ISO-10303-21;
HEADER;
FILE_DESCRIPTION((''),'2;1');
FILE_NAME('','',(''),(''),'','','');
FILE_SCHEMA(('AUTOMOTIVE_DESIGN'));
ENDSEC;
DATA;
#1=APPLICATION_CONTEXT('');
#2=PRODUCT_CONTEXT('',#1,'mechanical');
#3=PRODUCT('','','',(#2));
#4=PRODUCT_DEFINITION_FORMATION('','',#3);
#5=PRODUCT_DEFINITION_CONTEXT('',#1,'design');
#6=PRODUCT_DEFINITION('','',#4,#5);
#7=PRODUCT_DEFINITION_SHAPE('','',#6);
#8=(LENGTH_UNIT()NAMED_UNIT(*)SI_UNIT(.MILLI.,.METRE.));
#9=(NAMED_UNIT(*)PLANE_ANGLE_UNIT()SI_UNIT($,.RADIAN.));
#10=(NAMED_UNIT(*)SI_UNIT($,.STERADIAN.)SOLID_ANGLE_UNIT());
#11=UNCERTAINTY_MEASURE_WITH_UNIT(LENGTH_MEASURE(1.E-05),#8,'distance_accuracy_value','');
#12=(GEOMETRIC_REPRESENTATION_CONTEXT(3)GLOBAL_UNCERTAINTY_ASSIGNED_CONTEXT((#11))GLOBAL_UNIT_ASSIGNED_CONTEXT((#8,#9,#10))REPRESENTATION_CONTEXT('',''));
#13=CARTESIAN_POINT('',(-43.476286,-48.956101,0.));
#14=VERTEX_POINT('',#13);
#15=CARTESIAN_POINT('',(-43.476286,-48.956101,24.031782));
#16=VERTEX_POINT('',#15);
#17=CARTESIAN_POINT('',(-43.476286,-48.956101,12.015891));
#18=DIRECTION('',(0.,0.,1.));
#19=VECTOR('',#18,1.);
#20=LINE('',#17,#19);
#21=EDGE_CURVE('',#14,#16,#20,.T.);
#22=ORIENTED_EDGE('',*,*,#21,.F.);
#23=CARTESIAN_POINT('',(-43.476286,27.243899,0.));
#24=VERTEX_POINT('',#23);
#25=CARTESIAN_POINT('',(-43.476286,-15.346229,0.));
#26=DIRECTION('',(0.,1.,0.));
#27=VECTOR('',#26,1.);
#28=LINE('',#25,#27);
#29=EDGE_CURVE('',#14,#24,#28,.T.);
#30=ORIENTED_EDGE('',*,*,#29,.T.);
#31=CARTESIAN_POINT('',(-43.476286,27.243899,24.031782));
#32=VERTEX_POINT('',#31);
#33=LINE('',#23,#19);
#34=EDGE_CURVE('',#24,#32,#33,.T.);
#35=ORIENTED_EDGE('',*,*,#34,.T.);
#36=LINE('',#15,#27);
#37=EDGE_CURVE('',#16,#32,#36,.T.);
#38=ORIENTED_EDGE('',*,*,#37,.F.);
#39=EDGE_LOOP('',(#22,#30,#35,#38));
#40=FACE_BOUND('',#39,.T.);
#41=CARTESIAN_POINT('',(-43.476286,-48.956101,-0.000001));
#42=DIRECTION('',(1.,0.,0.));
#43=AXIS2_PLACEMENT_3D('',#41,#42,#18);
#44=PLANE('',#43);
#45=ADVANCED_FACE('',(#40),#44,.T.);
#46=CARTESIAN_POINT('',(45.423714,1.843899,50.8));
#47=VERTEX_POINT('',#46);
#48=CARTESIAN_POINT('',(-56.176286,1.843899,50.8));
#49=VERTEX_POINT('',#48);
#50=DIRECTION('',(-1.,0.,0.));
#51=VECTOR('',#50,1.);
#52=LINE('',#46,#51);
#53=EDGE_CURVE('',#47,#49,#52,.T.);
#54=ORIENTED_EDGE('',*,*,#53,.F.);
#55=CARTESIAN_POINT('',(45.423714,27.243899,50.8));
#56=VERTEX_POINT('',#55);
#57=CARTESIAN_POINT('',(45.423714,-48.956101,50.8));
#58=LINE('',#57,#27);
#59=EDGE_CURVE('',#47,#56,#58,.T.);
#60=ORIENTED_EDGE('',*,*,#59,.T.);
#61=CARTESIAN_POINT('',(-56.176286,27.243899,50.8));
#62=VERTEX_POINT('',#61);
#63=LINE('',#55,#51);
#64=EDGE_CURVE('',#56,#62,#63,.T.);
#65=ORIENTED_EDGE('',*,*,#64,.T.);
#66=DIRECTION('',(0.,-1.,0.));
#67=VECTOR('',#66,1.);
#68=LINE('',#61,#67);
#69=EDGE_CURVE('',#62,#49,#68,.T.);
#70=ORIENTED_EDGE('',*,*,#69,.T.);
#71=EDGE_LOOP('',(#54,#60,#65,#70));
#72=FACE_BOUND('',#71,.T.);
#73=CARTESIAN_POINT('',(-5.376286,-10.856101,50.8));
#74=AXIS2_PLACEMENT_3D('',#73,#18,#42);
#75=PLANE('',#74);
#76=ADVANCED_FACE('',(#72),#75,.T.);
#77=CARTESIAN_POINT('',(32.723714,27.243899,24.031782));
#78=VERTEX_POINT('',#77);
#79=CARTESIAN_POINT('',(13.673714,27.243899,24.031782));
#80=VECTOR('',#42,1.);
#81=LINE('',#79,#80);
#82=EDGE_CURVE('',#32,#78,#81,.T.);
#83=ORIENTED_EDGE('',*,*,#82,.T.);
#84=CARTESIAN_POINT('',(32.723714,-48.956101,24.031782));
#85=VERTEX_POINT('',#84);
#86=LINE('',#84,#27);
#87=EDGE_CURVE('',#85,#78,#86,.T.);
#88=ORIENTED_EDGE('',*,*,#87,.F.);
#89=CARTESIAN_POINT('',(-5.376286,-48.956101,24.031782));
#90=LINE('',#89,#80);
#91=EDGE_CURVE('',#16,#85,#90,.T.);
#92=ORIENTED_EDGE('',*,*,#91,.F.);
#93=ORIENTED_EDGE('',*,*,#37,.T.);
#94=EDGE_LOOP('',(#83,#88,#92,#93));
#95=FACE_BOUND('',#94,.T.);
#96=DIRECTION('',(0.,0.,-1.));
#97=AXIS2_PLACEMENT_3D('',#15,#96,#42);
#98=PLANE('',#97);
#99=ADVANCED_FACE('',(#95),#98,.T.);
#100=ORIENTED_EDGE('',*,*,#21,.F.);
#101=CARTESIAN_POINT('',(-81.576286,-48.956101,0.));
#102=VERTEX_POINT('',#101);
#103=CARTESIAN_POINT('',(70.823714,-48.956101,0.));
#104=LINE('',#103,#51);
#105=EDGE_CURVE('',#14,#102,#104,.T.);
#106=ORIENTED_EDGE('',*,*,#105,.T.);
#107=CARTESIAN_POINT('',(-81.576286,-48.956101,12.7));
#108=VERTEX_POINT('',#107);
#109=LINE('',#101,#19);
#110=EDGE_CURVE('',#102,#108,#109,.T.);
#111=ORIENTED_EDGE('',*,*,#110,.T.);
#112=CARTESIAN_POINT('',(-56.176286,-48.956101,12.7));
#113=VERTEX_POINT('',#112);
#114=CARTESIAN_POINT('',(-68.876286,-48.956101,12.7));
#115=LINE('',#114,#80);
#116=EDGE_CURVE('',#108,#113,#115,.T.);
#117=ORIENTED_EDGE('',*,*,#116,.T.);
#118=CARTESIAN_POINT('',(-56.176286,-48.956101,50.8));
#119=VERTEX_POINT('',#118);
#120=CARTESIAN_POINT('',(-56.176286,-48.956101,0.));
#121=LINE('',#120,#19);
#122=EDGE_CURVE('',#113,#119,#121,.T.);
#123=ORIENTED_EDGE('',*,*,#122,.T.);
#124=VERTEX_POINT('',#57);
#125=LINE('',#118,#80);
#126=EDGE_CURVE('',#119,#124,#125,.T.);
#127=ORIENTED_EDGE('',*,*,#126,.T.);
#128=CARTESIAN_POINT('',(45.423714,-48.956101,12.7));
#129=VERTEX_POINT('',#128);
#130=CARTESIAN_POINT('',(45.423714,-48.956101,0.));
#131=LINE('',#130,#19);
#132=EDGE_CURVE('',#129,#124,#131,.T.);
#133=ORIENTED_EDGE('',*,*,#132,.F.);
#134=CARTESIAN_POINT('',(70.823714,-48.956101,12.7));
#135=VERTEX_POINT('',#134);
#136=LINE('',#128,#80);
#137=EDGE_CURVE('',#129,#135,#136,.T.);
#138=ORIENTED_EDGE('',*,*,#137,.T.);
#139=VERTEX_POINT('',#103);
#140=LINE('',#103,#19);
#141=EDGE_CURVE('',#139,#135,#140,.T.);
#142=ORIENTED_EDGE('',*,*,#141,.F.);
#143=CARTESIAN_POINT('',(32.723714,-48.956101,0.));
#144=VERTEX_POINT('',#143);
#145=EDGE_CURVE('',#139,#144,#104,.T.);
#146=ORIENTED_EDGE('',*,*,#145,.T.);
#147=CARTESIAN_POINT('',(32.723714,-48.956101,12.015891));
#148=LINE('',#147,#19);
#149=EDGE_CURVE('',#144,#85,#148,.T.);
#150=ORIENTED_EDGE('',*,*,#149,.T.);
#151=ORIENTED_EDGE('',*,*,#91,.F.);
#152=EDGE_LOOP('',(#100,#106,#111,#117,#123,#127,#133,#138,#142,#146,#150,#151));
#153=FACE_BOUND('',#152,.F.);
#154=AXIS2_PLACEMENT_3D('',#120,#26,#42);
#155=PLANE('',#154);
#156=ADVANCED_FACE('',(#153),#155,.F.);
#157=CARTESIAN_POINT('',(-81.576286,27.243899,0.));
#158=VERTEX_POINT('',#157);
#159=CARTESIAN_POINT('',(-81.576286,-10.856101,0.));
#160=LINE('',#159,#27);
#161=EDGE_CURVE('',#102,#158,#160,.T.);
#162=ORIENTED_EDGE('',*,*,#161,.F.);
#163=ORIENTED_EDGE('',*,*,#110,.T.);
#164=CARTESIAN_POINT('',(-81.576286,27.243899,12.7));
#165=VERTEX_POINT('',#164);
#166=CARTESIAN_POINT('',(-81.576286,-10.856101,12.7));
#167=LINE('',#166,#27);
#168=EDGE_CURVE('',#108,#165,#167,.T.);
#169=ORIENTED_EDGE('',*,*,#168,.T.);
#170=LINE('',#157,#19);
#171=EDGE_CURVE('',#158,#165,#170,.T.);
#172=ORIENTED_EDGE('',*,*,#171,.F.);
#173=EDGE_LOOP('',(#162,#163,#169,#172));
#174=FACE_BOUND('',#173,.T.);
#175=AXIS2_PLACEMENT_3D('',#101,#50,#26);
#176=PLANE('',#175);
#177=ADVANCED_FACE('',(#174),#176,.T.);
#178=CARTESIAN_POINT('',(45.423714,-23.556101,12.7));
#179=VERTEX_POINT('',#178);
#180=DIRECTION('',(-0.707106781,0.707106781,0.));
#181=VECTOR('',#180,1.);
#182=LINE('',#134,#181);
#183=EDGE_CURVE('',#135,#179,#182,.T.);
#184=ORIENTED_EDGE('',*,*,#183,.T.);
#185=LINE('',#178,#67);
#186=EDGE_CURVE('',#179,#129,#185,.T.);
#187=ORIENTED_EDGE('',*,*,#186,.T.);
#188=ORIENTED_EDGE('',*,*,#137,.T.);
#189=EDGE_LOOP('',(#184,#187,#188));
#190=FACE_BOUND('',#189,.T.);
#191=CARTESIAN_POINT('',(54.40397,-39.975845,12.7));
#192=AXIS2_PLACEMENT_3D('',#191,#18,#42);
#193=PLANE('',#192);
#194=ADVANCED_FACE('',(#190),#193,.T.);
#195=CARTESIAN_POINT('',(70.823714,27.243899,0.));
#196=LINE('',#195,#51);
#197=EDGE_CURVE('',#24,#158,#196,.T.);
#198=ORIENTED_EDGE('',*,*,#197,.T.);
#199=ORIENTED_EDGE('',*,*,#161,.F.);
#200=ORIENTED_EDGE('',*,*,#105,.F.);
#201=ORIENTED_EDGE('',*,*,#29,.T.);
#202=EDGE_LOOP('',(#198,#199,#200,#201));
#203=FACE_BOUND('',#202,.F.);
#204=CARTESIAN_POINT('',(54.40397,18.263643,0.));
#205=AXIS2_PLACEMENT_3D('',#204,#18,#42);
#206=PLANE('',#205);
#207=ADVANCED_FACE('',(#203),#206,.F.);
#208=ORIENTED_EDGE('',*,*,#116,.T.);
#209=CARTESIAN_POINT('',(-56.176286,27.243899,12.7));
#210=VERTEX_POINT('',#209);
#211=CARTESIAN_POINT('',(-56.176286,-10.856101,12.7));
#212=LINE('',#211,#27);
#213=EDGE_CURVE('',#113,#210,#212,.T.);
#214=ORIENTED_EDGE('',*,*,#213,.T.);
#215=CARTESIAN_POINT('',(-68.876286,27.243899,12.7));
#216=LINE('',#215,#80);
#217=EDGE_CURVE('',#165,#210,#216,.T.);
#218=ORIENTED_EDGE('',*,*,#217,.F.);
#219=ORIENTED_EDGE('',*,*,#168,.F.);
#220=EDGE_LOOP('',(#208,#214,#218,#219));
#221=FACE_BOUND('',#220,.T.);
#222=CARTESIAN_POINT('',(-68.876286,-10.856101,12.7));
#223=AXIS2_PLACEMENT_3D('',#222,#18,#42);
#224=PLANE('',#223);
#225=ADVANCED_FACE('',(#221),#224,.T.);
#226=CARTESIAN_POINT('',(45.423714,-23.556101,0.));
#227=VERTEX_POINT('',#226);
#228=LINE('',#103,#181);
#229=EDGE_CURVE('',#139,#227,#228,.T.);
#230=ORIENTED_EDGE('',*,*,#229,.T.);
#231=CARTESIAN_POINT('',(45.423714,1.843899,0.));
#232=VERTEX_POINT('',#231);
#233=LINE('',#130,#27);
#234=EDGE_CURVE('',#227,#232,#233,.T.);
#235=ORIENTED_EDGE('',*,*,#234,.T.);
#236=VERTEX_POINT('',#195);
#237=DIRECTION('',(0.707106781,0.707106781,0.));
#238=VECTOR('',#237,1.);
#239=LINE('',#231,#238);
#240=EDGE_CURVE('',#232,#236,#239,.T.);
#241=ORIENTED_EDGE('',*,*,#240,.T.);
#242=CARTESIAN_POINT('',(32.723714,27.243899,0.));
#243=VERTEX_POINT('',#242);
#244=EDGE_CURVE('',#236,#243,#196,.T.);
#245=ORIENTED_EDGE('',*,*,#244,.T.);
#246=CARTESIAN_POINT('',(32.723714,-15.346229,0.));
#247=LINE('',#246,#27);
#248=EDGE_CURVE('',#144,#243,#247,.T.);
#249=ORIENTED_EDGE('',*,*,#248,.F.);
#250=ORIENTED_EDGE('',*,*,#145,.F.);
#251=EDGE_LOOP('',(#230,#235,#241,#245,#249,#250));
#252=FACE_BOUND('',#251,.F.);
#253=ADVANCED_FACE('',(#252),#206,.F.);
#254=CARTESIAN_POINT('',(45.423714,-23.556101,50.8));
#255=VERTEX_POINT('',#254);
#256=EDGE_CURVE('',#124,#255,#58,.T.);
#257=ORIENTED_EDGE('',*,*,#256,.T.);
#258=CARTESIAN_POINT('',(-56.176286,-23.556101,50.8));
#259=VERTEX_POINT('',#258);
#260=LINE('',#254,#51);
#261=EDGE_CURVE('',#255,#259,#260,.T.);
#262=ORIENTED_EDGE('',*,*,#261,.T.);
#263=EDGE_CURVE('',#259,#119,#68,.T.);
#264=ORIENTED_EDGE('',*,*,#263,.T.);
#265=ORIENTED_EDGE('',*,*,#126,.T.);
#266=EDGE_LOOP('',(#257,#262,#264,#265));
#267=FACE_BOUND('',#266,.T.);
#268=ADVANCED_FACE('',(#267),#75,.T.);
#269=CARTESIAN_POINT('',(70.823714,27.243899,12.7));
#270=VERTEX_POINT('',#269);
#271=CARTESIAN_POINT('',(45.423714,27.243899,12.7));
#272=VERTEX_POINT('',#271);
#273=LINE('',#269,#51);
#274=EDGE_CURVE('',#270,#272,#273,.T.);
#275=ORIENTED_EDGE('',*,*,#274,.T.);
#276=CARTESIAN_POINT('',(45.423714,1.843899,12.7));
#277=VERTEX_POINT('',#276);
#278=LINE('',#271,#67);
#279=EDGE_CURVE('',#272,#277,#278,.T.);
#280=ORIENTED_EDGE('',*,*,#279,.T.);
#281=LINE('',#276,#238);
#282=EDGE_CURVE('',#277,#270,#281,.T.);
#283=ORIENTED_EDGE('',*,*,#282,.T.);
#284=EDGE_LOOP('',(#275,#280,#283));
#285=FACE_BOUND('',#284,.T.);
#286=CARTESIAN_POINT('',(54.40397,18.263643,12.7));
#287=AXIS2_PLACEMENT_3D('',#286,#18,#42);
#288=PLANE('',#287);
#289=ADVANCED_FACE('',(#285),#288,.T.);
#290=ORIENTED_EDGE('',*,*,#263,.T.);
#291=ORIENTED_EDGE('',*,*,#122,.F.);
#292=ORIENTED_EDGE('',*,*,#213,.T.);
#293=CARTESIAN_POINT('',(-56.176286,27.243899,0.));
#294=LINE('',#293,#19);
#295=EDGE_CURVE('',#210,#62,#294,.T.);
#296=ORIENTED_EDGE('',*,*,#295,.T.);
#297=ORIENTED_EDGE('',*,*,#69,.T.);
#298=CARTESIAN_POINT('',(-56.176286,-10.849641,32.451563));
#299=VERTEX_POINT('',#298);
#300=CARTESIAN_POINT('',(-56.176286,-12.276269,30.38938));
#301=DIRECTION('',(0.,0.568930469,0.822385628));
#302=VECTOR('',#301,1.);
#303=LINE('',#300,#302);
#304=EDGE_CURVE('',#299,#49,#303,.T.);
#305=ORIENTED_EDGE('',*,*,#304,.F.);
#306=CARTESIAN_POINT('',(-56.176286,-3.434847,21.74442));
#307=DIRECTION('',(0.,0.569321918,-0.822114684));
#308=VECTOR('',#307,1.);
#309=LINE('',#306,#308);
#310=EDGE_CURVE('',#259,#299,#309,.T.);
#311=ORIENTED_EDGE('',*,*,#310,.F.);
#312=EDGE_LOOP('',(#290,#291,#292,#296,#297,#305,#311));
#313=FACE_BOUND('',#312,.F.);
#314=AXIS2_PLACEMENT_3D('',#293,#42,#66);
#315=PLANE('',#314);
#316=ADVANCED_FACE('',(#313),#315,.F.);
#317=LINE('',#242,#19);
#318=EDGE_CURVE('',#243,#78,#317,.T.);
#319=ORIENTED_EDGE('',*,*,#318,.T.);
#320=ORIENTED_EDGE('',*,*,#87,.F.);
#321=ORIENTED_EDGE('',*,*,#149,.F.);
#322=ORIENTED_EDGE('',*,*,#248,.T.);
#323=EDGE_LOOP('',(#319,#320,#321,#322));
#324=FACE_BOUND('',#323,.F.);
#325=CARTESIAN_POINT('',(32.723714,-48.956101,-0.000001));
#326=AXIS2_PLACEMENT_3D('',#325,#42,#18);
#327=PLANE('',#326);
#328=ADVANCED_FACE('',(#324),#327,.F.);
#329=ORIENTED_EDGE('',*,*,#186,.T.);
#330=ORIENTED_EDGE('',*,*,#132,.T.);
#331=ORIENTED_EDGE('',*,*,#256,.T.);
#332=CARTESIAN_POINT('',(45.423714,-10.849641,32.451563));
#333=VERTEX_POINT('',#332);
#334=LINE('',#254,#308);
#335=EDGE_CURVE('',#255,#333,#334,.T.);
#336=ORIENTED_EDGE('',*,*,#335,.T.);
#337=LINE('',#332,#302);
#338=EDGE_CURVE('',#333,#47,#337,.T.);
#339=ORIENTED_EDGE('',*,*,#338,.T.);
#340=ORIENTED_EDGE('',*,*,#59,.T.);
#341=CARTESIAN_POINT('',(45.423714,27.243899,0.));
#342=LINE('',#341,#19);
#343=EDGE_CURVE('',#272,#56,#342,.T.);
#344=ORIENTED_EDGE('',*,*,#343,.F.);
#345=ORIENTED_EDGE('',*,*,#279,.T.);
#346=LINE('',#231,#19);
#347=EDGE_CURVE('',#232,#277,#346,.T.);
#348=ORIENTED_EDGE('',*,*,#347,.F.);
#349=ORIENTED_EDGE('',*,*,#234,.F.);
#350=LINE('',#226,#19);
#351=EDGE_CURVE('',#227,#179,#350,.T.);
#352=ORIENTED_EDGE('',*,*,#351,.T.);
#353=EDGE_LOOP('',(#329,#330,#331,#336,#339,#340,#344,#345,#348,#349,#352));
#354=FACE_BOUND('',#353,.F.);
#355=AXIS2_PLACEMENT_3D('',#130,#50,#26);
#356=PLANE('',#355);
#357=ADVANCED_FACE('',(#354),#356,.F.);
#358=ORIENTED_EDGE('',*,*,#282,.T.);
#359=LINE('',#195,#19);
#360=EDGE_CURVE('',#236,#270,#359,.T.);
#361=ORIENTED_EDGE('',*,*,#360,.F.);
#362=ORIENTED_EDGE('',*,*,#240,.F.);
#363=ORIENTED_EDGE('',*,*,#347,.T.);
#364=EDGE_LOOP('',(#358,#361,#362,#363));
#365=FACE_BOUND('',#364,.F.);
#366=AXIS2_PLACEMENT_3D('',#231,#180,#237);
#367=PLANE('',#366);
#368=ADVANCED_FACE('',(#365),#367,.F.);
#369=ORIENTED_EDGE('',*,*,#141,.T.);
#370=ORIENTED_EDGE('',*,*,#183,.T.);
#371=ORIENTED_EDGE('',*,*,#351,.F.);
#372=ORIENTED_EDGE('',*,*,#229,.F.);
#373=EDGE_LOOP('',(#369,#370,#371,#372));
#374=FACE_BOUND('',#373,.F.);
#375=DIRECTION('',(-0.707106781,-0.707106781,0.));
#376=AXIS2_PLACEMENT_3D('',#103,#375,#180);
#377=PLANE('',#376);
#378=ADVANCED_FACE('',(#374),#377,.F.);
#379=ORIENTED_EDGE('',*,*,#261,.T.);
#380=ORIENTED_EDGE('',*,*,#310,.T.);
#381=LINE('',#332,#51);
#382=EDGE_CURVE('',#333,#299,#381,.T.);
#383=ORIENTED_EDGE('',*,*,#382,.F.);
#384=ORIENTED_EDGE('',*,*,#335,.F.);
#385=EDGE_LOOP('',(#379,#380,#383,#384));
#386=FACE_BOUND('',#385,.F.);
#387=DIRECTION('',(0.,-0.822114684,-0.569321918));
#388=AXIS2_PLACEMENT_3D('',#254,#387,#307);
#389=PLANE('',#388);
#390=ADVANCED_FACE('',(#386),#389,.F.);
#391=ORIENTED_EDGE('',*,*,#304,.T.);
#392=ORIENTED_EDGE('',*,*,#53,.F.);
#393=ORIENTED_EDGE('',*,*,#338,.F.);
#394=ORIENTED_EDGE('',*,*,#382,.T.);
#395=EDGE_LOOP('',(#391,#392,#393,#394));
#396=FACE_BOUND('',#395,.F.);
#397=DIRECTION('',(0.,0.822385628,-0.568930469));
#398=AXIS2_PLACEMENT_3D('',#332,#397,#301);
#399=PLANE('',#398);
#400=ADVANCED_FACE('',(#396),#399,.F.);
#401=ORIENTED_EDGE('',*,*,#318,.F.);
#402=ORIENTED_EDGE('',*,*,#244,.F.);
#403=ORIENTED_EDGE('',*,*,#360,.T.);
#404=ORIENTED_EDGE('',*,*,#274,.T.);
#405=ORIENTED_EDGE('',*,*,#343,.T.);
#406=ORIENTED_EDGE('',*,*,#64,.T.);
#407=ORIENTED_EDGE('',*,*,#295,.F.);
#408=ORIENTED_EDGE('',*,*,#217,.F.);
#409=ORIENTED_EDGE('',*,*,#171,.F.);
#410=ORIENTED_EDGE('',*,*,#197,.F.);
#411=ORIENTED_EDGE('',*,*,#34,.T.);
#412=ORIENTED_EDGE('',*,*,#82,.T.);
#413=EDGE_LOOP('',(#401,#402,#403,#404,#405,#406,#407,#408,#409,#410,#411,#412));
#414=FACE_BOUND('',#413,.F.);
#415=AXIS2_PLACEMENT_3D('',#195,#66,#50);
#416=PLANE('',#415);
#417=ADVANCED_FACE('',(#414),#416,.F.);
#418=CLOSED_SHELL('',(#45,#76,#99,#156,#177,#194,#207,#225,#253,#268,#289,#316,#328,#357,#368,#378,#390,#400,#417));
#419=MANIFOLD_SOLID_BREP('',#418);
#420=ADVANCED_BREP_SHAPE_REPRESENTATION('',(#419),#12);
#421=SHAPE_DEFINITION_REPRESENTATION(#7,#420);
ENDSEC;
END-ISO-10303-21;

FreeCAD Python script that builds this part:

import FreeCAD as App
import Part
import Sketcher
Q = App.Units.Quantity


def add_polygon(sketch, points):
    """Adds a closed chain of lines whose ends are joined by coincident constraints."""
    first, n = sketch.GeometryCount, len(points)
    for a, b in zip(points, points[1:] + points[:1]):
        sketch.addGeometry(Part.LineSegment(App.Vector(*a, 0), App.Vector(*b, 0)), False)
    for i in range(n):
        sketch.addConstraint(Sketcher.Constraint("Coincident", first + i, 2, first + (i + 1) % n, 1))

doc = App.newDocument("Part")
body = doc.addObject("PartDesign::Body", "Body")

sketch1 = body.newObject("Sketcher::SketchObject", "Sketch")
sketch1.AttachmentSupport = (doc.getObject("XY_Plane"), [""])
sketch1.MapMode = "FlatFace"
add_polygon(sketch1, [(-82, 27), (-82, -49), (-56, -49), (-56, 27)])
sketch1.addConstraint([
    Sketcher.Constraint("Vertical", 0),
    Sketcher.Constraint("Horizontal", 1),
    Sketcher.Constraint("Vertical", 2),
    Sketcher.Constraint("Horizontal", 3),
    Sketcher.Constraint("DistanceX", 1, 1, 1, 2, Q("1 in")),
    Sketcher.Constraint("DistanceY", 0, 2, 0, 1, Q("3 in")),
    Sketcher.Constraint("DistanceY", 0, 2, -1, 1, 48.956101),
    Sketcher.Constraint("DistanceX", 0, 2, -1, 1, 81.576286),
])
pad1 = body.newObject("PartDesign::Pad", "Pad")
pad1.Profile = sketch1
pad1.Length = Q("0.5 in")

sketch2 = body.newObject("Sketcher::SketchObject", "Sketch001")
sketch2.AttachmentSupport = (doc.getObject("XY_Plane"), [""])
sketch2.MapMode = "FlatFace"
add_polygon(sketch2, [(45, 27), (-56, 27), (-56, -49), (45, -49)])
sketch2.addConstraint([
    Sketcher.Constraint("Horizontal", 0),
    Sketcher.Constraint("Vertical", 1),
    Sketcher.Constraint("Horizontal", 2),
    Sketcher.Constraint("Vertical", 3),
    Sketcher.Constraint("DistanceX", 0, 2, 0, 1, Q("4 in")),
    Sketcher.Constraint("DistanceY", 1, 2, 1, 1, Q("3 in")),
    Sketcher.Constraint("DistanceY", -1, 1, 0, 2, 27.243899),
    Sketcher.Constraint("DistanceX", 0, 2, -1, 1, 56.176286),
])
pad2 = body.newObject("PartDesign::Pad", "Pad001")
pad2.Profile = sketch2
pad2.Length = Q("2 in")

sketch3 = body.newObject("Sketcher::SketchObject", "Sketch002")
sketch3.AttachmentSupport = (doc.getObject("XY_Plane"), [""])
sketch3.MapMode = "FlatFace"
add_polygon(sketch3, [(71, 27), (45, 27), (45, 2)])
add_polygon(sketch3, [(45, -24), (45, -49), (71, -49)])
sketch3.addConstraint([
    Sketcher.Constraint("Horizontal", 0),
    Sketcher.Constraint("Vertical", 1),
    Sketcher.Constraint("Vertical", 3),
    Sketcher.Constraint("Horizontal", 4),
    Sketcher.Constraint("Perpendicular", 2, 5),
    Sketcher.Constraint("Vertical", 1, 2, 3, 2),
    Sketcher.Constraint("Vertical", 2, 2, 4, 2),
    Sketcher.Constraint("Equal", 4, 1),
    Sketcher.Constraint("DistanceX", 0, 2, 0, 1, Q("1 in")),
    Sketcher.Constraint("DistanceY", 3, 2, 1, 2, Q("2 in")),
    Sketcher.Constraint("DistanceY", -1, 1, 0, 2, 27.243899),
    Sketcher.Constraint("DistanceX", -1, 1, 0, 2, 45.423714),
])
pad3 = body.newObject("PartDesign::Pad", "Pad002")
pad3.Profile = sketch3
pad3.Length = Q("0.5 in")

sketch4 = body.newObject("Sketcher::SketchObject", "Sketch003")
sketch4.AttachmentSupport = (doc.getObject("YZ_Plane"), [""])
sketch4.MapMode = "FlatFace"
sketch4.AttachmentOffset = App.Placement(App.Vector(0, 0, 45.423714), App.Rotation())
add_polygon(sketch4, [(-11, 32), (2, 51), (-24, 51)])
sketch4.addConstraint([
    Sketcher.Constraint("Horizontal", 1),
    Sketcher.Constraint("DistanceX", 1, 2, 1, 1, Q("1 in")),
    Sketcher.Constraint("DistanceY", -1, 1, 0, 2, Q("2 in")),
    Sketcher.Constraint("DistanceX", -1, 1, 0, 2, 1.843899),
    Sketcher.Constraint("DistanceX", 2, 2, -1, 1, 10.849641),
    Sketcher.Constraint("Distance", 0, 22.311233),
])
pocket1 = body.newObject("PartDesign::Pocket", "Pocket")
pocket1.Profile = sketch4
pocket1.Type = "ThroughAll"

sketch5 = body.newObject("Sketcher::SketchObject", "Sketch004")
sketch5.AttachmentSupport = (doc.getObject("XZ_Plane"), [""])
sketch5.MapMode = "FlatFace"
sketch5.AttachmentOffset = App.Placement(App.Vector(0, 0, 48.956101), App.Rotation())
add_polygon(sketch5, [(-43, 24), (-43, 0), (33, 0), (33, 24)])
sketch5.addConstraint([
    Sketcher.Constraint("Vertical", 0),
    Sketcher.Constraint("Horizontal", 1),
    Sketcher.Constraint("Vertical", 2),
    Sketcher.Constraint("Horizontal", 3),
    Sketcher.Constraint("PointOnObject", 0, 2, -1),
    Sketcher.Constraint("DistanceX", 1, 1, 1, 2, Q("3 in")),
    Sketcher.Constraint("DistanceY", 0, 2, 0, 1, 24.031783),
    Sketcher.Constraint("DistanceX", 0, 2, -1, 1, 43.476286),
])
pocket2 = body.newObject("PartDesign::Pocket", "Pocket001")
pocket2.Profile = sketch5
pocket2.Type = "ThroughAll"

doc.recompute()
